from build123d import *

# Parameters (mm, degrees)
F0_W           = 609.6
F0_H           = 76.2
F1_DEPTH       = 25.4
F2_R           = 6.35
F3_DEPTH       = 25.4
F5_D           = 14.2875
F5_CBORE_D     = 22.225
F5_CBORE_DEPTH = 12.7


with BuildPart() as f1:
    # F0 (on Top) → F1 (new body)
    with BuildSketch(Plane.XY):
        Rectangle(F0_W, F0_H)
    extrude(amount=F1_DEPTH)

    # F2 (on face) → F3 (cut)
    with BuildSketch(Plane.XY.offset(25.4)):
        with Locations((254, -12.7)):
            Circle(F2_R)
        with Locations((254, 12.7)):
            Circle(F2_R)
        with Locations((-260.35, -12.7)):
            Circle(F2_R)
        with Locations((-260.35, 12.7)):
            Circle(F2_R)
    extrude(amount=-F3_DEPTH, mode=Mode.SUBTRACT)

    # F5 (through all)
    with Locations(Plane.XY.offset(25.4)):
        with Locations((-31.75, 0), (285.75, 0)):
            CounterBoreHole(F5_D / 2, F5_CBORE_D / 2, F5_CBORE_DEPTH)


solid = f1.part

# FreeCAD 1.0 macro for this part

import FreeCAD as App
import Part
import Sketcher

V = App.Vector
Q = App.Units.Quantity

doc = App.newDocument("Part")
body = doc.addObject("PartDesign::Body", "Body")

# Sketch on XY plane
sketch1 = body.newObject("Sketcher::SketchObject", "Sketch")
sketch1.AttachmentSupport = (doc.getObject("XY_Plane"), [""])
sketch1.MapMode = "FlatFace"
sketch1.addGeometry([
    Part.LineSegment(V(-305, 38, 0), V(-305, -38, 0)),
    Part.LineSegment(V(-305, -38, 0), V(305, -38, 0)),
    Part.LineSegment(V(305, -38, 0), V(305, 38, 0)),
    Part.LineSegment(V(305, 38, 0), V(-305, 38, 0)),
], False)
sketch1.addConstraint([
    Sketcher.Constraint("Coincident", 0, 2, 1, 1),
    Sketcher.Constraint("Coincident", 1, 2, 2, 1),
    Sketcher.Constraint("Coincident", 2, 2, 3, 1),
    Sketcher.Constraint("Coincident", 3, 2, 0, 1),
    Sketcher.Constraint("Vertical", 0),
    Sketcher.Constraint("Horizontal", 1),
    Sketcher.Constraint("Vertical", 2),
    Sketcher.Constraint("Horizontal", 3),
    Sketcher.Constraint("Symmetric", 0, 2, 2, 2, -1, 1),
    Sketcher.Constraint("DistanceX", 1, 1, 1, 2, Q("24 in")),
    Sketcher.Constraint("DistanceY", 0, 2, 0, 1, Q("3 in")),
])
pad1 = body.newObject("PartDesign::Pad", "Pad")
pad1.Profile = sketch1
pad1.Length = Q("1 in")

# Sketch on XY plane
sketch2 = body.newObject("Sketcher::SketchObject", "Sketch001")
sketch2.AttachmentSupport = (doc.getObject("XY_Plane"), [""])
sketch2.MapMode = "FlatFace"
sketch2.AttachmentOffset = App.Placement(V(0, 0, 1 * 25.4), App.Rotation())
sketch2.addGeometry([
    Part.Circle(V(254, -13, 0), V(0, 0, 1), 6),
    Part.Circle(V(254, 13, 0), V(0, 0, 1), 6),
    Part.Circle(V(-260, -13, 0), V(0, 0, 1), 6),
    Part.Circle(V(-260, 13, 0), V(0, 0, 1), 6),
], False)
sketch2.addConstraint([
    Sketcher.Constraint("Equal", 0, 1),
    Sketcher.Constraint("Equal", 1, 2),
    Sketcher.Constraint("Equal", 2, 3),
    Sketcher.Constraint("Symmetric", 0, 3, 1, 3, -1),
    Sketcher.Constraint("Symmetric", 2, 3, 3, 3, -1),
    Sketcher.Constraint("Horizontal", 0, 3, 2, 3),
    Sketcher.Constraint("Diameter", 0, Q("0.5 in")),
    Sketcher.Constraint("DistanceX", -1, 1, 0, 3, Q("10 in")),
    Sketcher.Constraint("DistanceY", 0, 3, 1, 3, Q("1 in")),
    Sketcher.Constraint("DistanceX", 2, 3, -1, 1, Q("10.25 in")),
])
pocket1 = body.newObject("PartDesign::Pocket", "Pocket")
pocket1.Profile = sketch2
pocket1.Length = Q("1 in")

# Sketch on XY plane
sketch3 = body.newObject("Sketcher::SketchObject", "Sketch002")
sketch3.AttachmentSupport = (doc.getObject("XY_Plane"), [""])
sketch3.MapMode = "FlatFace"
sketch3.AttachmentOffset = App.Placement(V(0, 0, 1 * 25.4), App.Rotation())
sketch3.addGeometry([
    Part.Circle(V(-32, 0, 0), V(0, 0, 1), 7),
    Part.Circle(V(286, 0, 0), V(0, 0, 1), 7),
], False)
sketch3.addConstraint([
    Sketcher.Constraint("Equal", 0, 1),
    Sketcher.Constraint("PointOnObject", 0, 3, -1),
    Sketcher.Constraint("PointOnObject", 1, 3, -1),
    Sketcher.Constraint("Diameter", 0, Q("0.5625 in")),
    Sketcher.Constraint("DistanceX", 0, 3, 1, 3, Q("12.5 in")),
    Sketcher.Constraint("DistanceX", 0, 3, -1, 1, Q("1.25 in")),
])
doc.recompute()
hole = body.newObject("PartDesign::Hole", "Hole")
hole.Profile = sketch3
hole.ThreadType = "None"
hole.Diameter = Q("0.5625 in")
hole.DepthType = "ThroughAll"
hole.HoleCutType = "Counterbore"
hole.HoleCutDiameter = Q("0.875 in")
hole.HoleCutDepth = Q("0.5 in")

doc.recompute()
